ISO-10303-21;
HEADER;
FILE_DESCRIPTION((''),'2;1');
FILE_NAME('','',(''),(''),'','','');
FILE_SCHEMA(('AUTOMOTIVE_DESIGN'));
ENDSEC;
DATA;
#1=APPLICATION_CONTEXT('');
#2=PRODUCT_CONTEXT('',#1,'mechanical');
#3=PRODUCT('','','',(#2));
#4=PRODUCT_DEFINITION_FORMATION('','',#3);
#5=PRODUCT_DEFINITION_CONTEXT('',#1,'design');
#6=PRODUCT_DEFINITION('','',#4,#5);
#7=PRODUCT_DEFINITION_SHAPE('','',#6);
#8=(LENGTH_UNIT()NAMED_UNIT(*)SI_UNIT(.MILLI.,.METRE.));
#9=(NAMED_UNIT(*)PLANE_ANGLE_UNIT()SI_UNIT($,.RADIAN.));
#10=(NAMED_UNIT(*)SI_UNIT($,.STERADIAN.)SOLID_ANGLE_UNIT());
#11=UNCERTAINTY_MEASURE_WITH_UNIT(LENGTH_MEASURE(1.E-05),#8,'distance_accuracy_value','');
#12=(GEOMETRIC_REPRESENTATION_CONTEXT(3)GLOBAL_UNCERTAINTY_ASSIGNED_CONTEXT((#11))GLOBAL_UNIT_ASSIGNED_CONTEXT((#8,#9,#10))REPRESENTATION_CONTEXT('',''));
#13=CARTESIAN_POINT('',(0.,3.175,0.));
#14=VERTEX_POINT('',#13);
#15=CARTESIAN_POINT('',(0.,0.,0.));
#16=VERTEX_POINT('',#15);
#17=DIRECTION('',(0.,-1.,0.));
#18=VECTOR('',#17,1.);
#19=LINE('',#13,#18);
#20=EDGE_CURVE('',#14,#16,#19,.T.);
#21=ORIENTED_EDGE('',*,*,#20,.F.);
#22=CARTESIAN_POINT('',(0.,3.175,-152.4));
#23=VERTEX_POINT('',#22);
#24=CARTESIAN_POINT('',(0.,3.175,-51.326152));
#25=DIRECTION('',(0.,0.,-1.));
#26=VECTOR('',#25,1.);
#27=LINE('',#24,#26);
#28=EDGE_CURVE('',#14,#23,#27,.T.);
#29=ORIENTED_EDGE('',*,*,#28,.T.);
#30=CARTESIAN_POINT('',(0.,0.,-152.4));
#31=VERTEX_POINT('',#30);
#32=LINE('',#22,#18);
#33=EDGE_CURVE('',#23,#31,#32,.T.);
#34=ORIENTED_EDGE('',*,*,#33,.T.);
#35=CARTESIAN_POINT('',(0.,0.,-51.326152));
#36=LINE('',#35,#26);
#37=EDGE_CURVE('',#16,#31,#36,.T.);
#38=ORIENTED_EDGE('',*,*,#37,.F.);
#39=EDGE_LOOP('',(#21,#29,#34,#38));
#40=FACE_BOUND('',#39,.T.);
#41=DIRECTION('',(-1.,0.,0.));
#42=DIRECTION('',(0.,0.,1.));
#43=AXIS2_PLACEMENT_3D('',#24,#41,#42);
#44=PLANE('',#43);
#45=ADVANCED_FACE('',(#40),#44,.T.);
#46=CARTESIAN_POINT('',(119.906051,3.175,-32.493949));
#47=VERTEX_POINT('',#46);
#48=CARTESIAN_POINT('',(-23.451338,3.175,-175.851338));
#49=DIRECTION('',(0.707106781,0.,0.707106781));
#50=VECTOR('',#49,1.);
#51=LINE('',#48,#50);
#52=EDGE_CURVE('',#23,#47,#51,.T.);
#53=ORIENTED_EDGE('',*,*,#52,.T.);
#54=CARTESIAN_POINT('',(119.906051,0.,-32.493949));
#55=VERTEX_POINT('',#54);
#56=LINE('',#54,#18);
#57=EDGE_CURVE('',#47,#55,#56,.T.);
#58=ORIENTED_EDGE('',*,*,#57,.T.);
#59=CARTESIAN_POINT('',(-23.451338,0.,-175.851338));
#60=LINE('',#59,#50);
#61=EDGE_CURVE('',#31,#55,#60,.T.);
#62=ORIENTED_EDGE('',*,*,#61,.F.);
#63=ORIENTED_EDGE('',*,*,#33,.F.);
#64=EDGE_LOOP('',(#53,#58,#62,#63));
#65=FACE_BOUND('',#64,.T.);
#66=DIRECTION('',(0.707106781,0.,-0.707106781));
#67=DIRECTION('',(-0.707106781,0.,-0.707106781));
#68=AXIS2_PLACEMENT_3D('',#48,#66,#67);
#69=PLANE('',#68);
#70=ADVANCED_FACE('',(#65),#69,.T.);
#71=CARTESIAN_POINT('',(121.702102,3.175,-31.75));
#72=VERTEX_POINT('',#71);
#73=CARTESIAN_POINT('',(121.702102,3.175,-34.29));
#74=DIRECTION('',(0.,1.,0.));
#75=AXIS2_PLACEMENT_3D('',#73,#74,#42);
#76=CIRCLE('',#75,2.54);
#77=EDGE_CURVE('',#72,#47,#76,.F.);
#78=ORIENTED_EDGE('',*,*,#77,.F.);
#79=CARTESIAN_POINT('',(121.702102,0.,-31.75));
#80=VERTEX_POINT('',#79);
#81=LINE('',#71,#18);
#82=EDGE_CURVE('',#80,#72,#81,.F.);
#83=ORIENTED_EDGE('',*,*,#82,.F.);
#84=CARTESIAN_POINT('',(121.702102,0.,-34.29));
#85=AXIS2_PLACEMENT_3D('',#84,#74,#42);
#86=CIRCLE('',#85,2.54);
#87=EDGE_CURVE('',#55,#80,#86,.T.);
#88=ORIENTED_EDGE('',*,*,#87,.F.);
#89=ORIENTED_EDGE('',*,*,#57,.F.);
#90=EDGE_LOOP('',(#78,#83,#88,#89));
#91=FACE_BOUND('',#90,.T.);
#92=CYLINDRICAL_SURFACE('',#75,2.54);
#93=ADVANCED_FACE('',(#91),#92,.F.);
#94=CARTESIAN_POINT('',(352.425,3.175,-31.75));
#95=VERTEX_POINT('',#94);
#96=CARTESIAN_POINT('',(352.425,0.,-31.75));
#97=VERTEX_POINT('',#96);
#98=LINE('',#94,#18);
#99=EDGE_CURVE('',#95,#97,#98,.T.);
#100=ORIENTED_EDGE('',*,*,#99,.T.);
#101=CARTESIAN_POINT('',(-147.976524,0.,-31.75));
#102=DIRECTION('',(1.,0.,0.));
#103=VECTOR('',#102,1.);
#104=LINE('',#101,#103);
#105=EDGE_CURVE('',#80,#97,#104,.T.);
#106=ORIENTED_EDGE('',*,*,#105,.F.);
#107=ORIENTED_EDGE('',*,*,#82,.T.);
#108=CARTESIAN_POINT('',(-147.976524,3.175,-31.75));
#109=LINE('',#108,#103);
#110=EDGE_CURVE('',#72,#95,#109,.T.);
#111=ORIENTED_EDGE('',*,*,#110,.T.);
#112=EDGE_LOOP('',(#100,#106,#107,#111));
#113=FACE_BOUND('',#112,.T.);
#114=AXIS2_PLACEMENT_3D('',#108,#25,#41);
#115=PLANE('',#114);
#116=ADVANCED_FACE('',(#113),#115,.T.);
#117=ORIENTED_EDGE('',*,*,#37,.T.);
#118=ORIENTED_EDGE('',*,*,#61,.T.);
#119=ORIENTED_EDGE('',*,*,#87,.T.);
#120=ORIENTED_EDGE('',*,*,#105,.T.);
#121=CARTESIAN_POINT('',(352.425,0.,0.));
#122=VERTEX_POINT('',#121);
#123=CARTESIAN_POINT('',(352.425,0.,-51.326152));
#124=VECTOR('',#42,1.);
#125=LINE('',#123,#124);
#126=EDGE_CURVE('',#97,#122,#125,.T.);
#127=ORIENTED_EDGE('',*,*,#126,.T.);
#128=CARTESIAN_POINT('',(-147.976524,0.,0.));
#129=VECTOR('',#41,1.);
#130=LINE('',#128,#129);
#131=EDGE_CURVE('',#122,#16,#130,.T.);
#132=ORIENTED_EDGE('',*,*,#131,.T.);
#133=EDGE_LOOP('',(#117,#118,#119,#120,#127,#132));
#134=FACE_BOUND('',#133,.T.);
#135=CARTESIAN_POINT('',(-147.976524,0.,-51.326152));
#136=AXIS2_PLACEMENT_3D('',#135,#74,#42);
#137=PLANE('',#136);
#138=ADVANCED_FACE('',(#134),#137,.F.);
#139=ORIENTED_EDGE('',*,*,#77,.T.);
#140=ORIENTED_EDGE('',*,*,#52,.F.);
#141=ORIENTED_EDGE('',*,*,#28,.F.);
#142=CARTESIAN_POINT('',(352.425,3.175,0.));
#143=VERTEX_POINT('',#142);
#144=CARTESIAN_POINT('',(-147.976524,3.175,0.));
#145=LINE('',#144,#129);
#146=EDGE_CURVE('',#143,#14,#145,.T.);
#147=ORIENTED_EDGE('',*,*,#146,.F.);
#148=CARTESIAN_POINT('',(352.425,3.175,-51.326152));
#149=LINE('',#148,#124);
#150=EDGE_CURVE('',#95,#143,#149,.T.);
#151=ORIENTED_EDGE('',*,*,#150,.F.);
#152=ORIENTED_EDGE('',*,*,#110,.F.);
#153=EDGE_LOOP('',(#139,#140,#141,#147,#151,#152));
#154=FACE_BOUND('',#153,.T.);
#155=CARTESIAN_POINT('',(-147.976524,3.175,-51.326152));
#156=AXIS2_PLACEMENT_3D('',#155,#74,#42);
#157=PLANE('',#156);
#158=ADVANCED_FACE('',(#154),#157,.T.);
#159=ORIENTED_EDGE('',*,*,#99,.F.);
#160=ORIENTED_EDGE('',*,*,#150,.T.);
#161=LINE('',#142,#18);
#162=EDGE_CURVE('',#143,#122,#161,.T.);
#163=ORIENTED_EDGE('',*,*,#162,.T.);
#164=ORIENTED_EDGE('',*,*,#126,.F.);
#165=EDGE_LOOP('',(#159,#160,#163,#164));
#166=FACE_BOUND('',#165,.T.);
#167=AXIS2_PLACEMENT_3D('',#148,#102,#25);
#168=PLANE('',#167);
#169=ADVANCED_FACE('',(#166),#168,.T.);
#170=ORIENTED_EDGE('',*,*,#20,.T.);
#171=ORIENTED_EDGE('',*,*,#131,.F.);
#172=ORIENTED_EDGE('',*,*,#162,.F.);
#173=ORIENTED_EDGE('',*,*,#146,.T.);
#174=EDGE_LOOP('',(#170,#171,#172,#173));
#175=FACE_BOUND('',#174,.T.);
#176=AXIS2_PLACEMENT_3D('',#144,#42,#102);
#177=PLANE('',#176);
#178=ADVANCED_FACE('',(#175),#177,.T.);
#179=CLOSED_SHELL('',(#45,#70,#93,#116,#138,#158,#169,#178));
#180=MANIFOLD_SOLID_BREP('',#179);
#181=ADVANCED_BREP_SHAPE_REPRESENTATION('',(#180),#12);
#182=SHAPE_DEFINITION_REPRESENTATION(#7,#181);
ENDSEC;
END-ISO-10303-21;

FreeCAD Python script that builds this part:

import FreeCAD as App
import Part
import Sketcher
from FreeCAD import Vector
Q = App.Units.Quantity


def edges_at(feature, points):
    """Names of the edges that pass closest to the given points."""
    edges = feature.Shape.Edges
    near = lambda p: min(range(len(edges)), key=lambda i: edges[i].distToShape(Part.Vertex(*p))[0])
    return sorted({f"Edge{near(p) + 1}" for p in points})

doc = App.newDocument("Part")
body = doc.addObject("PartDesign::Body", "Body")

# Sketch on XZ plane
sketch1 = body.newObject("Sketcher::SketchObject", "Sketch")
sketch1.AttachmentSupport = (doc.getObject("XZ_Plane"), [""])
sketch1.MapMode = "FlatFace"
sketch1.addGeometry(Part.LineSegment(Vector(0, 0, 0), Vector(352, 0, 0)), False)
sketch1.addGeometry(Part.LineSegment(Vector(352, 0, 0), Vector(352, -32, 0)), False)
sketch1.addGeometry(Part.LineSegment(Vector(352, -32, 0), Vector(121, -32, 0)), False)
sketch1.addGeometry(Part.LineSegment(Vector(121, -32, 0), Vector(0, -152, 0)), False)
sketch1.addGeometry(Part.LineSegment(Vector(0, -152, 0), Vector(0, 0, 0)), False)
sketch1.addConstraint(Sketcher.Constraint("Coincident", 0, 2, 1, 1))
sketch1.addConstraint(Sketcher.Constraint("Coincident", 1, 2, 2, 1))
sketch1.addConstraint(Sketcher.Constraint("Coincident", 2, 2, 3, 1))
sketch1.addConstraint(Sketcher.Constraint("Coincident", 3, 2, 4, 1))
sketch1.addConstraint(Sketcher.Constraint("Coincident", 4, 2, 0, 1))
sketch1.addConstraint(Sketcher.Constraint("Horizontal", 0))
sketch1.addConstraint(Sketcher.Constraint("Vertical", 1))
sketch1.addConstraint(Sketcher.Constraint("Horizontal", 2))
sketch1.addConstraint(Sketcher.Constraint("Vertical", 4))
sketch1.addConstraint(Sketcher.Constraint("Coincident", 4, 2, -1, 1))
sketch1.addConstraint(Sketcher.Constraint("DistanceY", 4, 1, 4, 2, Q("6 in")))
sketch1.addConstraint(Sketcher.Constraint("Angle", 3, Q("-135 deg")))
sketch1.addConstraint(Sketcher.Constraint("DistanceY", 1, 2, 1, 1, Q("1.25 in")))
sketch1.addConstraint(Sketcher.Constraint("DistanceX", 0, 1, 0, 2, Q("13.875 in")))
pad1 = body.newObject("PartDesign::Pad", "Pad")
pad1.Profile = sketch1
pad1.Length = Q("0.125 in")
pad1.Reversed = True
doc.recompute()

fillet = body.newObject("PartDesign::Fillet", "Fillet")
fillet.Base = (pad1, edges_at(pad1, [(120.65, 1.587, -31.75)]))
fillet.Radius = Q("0.1 in")

doc.recompute()
